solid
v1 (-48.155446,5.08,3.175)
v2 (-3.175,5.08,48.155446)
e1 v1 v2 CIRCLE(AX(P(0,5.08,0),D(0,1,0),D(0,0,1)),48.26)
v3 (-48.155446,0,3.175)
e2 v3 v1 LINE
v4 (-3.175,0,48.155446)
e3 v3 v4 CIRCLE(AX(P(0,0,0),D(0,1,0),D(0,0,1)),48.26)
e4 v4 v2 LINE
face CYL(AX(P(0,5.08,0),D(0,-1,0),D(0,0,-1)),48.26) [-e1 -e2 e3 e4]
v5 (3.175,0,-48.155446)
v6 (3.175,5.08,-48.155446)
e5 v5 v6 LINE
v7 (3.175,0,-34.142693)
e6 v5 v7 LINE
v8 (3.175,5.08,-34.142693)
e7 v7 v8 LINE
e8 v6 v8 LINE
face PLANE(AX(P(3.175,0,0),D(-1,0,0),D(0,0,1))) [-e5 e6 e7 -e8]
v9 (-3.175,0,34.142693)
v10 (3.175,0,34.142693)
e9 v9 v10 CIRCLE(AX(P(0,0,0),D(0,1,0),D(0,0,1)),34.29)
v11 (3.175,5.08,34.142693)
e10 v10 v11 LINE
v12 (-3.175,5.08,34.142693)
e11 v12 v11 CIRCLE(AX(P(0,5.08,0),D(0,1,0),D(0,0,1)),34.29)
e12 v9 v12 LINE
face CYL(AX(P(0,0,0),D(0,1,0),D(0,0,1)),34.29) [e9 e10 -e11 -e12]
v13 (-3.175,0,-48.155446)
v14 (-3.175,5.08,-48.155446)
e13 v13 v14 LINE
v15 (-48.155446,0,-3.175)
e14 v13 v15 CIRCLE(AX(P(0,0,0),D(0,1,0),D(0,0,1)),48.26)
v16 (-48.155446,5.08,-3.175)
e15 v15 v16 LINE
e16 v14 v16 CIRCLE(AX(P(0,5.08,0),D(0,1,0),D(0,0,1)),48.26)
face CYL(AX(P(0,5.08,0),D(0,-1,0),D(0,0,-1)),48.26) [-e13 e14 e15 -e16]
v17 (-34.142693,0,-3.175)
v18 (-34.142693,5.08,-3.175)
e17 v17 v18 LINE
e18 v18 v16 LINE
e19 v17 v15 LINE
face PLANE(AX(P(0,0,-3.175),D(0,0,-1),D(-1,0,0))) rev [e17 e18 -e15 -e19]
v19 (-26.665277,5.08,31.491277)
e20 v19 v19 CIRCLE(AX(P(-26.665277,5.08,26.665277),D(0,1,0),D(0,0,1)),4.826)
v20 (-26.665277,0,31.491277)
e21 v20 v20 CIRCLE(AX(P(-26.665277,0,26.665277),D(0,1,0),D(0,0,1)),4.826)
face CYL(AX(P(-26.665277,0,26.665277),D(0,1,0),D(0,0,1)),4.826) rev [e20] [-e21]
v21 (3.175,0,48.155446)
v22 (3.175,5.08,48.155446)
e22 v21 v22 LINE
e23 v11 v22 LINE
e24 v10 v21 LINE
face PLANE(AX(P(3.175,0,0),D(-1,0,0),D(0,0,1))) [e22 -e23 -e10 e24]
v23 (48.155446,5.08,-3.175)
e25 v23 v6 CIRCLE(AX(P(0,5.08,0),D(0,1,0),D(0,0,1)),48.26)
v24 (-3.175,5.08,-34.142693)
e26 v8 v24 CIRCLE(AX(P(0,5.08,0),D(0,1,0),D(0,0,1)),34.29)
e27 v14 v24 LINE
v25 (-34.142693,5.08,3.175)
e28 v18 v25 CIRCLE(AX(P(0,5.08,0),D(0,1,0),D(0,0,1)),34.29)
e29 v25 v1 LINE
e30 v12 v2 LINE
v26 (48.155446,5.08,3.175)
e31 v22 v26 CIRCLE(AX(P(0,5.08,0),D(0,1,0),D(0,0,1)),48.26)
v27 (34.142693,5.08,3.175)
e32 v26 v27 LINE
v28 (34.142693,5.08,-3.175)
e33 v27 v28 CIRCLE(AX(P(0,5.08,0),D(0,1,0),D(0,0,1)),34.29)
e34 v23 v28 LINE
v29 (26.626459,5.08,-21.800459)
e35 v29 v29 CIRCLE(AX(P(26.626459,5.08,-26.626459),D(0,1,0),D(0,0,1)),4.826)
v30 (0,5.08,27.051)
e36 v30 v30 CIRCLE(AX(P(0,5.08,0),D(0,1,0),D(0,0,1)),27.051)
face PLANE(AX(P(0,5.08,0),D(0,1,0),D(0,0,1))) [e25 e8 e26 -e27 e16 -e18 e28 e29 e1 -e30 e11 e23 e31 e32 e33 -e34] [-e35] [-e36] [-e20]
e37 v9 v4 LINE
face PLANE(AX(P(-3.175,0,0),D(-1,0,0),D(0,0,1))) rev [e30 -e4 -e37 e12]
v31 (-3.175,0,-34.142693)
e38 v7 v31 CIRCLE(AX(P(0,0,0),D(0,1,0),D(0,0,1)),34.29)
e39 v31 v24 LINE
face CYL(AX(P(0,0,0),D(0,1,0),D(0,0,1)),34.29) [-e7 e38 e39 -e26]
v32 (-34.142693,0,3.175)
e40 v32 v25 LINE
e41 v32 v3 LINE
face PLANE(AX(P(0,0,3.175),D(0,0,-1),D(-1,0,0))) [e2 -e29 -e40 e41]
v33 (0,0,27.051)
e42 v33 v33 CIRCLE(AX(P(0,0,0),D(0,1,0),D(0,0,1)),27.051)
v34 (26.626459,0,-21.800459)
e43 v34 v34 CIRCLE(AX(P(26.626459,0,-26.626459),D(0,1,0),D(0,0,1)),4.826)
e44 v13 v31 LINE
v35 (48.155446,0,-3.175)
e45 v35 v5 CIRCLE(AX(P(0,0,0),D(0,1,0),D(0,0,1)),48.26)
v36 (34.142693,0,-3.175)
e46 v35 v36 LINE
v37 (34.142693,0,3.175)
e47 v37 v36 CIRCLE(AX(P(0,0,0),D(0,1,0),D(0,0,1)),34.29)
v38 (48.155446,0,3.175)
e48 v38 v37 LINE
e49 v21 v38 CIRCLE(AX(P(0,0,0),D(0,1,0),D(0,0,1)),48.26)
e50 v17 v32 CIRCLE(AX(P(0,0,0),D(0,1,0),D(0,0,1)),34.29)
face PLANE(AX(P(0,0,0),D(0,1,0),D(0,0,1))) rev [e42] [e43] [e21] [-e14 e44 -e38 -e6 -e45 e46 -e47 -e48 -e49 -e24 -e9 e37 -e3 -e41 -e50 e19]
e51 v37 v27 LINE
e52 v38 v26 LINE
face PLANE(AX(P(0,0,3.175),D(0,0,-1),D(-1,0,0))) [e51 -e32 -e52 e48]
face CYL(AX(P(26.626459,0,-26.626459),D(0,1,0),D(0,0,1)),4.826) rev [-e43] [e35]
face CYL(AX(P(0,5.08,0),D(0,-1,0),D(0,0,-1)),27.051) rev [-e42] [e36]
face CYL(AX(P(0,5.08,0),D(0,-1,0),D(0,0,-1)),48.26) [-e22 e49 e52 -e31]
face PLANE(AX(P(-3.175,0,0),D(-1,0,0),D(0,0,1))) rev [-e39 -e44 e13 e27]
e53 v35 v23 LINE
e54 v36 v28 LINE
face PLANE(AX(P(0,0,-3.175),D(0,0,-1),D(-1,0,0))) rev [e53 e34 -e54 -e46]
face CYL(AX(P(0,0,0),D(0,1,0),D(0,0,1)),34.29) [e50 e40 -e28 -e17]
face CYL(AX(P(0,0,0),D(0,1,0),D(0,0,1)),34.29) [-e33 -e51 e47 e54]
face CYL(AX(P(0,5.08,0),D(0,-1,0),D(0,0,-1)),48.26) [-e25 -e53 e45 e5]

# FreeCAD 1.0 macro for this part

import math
import FreeCAD as App
import Part
import Sketcher
Q = App.Units.Quantity

doc = App.newDocument("Part")
body = doc.addObject("PartDesign::Body", "Body")

sketch1 = doc.addObject("Sketcher::SketchObject", "Sketch")
body.addObject(sketch1)
sketch1.AttachmentSupport = (doc.XZ_Plane, [""])
sketch1.MapMode = "FlatFace"
sketch1.addGeometry(Part.Circle(App.Vector(0, 0, 0), App.Vector(0, 0, 1), 48), False)
sketch1.addGeometry(Part.Circle(App.Vector(0, 0, 0), App.Vector(0, 0, 1), 27), False)
sketch1.addConstraint(Sketcher.Constraint("Coincident", 0, 3, -1, 1))
sketch1.addConstraint(Sketcher.Constraint("Coincident", 1, 3, -1, 1))
sketch1.addConstraint(Sketcher.Constraint("Diameter", 0, Q("3.8 in")))
sketch1.addConstraint(Sketcher.Constraint("Diameter", 1, Q("2.13 in")))
pad1 = doc.addObject("PartDesign::Pad", "Pad")
body.addObject(pad1)
pad1.Profile = sketch1
pad1.Length = Q("0.2 in")
pad1.Reversed = True

sketch2 = doc.addObject("Sketcher::SketchObject", "Sketch001")
body.addObject(sketch2)
sketch2.AttachmentSupport = (doc.XZ_Plane, [""])
sketch2.MapMode = "FlatFace"
sketch2.AttachmentOffset = App.Placement(App.Vector(0, 0, -0.2 * 25.4), App.Rotation())
sketch2.addGeometry(Part.ArcOfCircle(Part.Circle(App.Vector(0, 0, 0), App.Vector(0, 0, 1), 34.3), math.radians(174.69), math.radians(185.31)), False)
sketch2.addGeometry(Part.LineSegment(App.Vector(-34.1, -3.2, 0), App.Vector(-48.2, -3.2, 0)), False)
sketch2.addGeometry(Part.ArcOfCircle(Part.Circle(App.Vector(0, 0, 0), App.Vector(0, 0, 1), 48.3), math.radians(176.23), math.radians(183.77)), False)
sketch2.addGeometry(Part.LineSegment(App.Vector(-48.2, 3.2, 0), App.Vector(-34.1, 3.2, 0)), False)
sketch2.addGeometry(Part.ArcOfCircle(Part.Circle(App.Vector(0, 0, 0), App.Vector(0, 0, 1), 48.3), math.radians(-3.77), math.radians(0)), False)
sketch2.addGeometry(Part.LineSegment(App.Vector(48.2, -3.2, 0), App.Vector(34.1, -3.2, 0)), False)
sketch2.addGeometry(Part.ArcOfCircle(Part.Circle(App.Vector(0, 0, 0), App.Vector(0, 0, 1), 34.3), math.radians(-5.31), math.radians(5.31)), False)
sketch2.addGeometry(Part.LineSegment(App.Vector(34.1, 3.2, 0), App.Vector(48.2, 3.2, 0)), False)
sketch2.addGeometry(Part.ArcOfCircle(Part.Circle(App.Vector(0, 0, 0), App.Vector(0, 0, 1), 48.3), math.radians(0), math.radians(3.77)), False)
sketch2.addGeometry(Part.LineSegment(App.Vector(-3.2, 34.1, 0), App.Vector(-3.2, 48.2, 0)), False)
sketch2.addGeometry(Part.ArcOfCircle(Part.Circle(App.Vector(0, 0, 0), App.Vector(0, 0, 1), 48.3), math.radians(86.23), math.radians(93.77)), False)
sketch2.addGeometry(Part.LineSegment(App.Vector(3.2, 48.2, 0), App.Vector(3.2, 34.1, 0)), False)
sketch2.addGeometry(Part.ArcOfCircle(Part.Circle(App.Vector(0, 0, 0), App.Vector(0, 0, 1), 34.3), math.radians(84.69), math.radians(95.31)), False)
sketch2.addGeometry(Part.ArcOfCircle(Part.Circle(App.Vector(0, 0, 0), App.Vector(0, 0, 1), 48.3), math.radians(-93.77), math.radians(-86.23)), False)
sketch2.addGeometry(Part.LineSegment(App.Vector(-3.2, -48.2, 0), App.Vector(-3.2, -34.1, 0)), False)
sketch2.addGeometry(Part.ArcOfCircle(Part.Circle(App.Vector(0, 0, 0), App.Vector(0, 0, 1), 34.3), math.radians(-95.31), math.radians(-84.69)), False)
sketch2.addGeometry(Part.LineSegment(App.Vector(3.2, -34.1, 0), App.Vector(3.2, -48.2, 0)), False)
sketch2.addConstraint(Sketcher.Constraint("Coincident", 0, 2, 1, 1))
sketch2.addConstraint(Sketcher.Constraint("Coincident", 1, 2, 2, 2))
sketch2.addConstraint(Sketcher.Constraint("Coincident", 2, 1, 3, 1))
sketch2.addConstraint(Sketcher.Constraint("Coincident", 3, 2, 0, 1))
sketch2.addConstraint(Sketcher.Constraint("Coincident", 4, 1, 5, 1))
sketch2.addConstraint(Sketcher.Constraint("Coincident", 5, 2, 6, 1))
sketch2.addConstraint(Sketcher.Constraint("Coincident", 6, 2, 7, 1))
sketch2.addConstraint(Sketcher.Constraint("Coincident", 7, 2, 8, 2))
sketch2.addConstraint(Sketcher.Constraint("Tangent", 8, 1, 4, 2))
sketch2.addConstraint(Sketcher.Constraint("Coincident", 9, 2, 10, 2))
sketch2.addConstraint(Sketcher.Constraint("Coincident", 10, 1, 11, 1))
sketch2.addConstraint(Sketcher.Constraint("Coincident", 11, 2, 12, 1))
sketch2.addConstraint(Sketcher.Constraint("Coincident", 12, 2, 9, 1))
sketch2.addConstraint(Sketcher.Constraint("Coincident", 13, 1, 14, 1))
sketch2.addConstraint(Sketcher.Constraint("Coincident", 14, 2, 15, 1))
sketch2.addConstraint(Sketcher.Constraint("Coincident", 15, 2, 16, 1))
sketch2.addConstraint(Sketcher.Constraint("Coincident", 16, 2, 13, 2))
sketch2.addConstraint(Sketcher.Constraint("Horizontal", 1))
sketch2.addConstraint(Sketcher.Constraint("Horizontal", 3))
sketch2.addConstraint(Sketcher.Constraint("Horizontal", 5))
sketch2.addConstraint(Sketcher.Constraint("Horizontal", 7))
sketch2.addConstraint(Sketcher.Constraint("Vertical", 9))
sketch2.addConstraint(Sketcher.Constraint("Vertical", 11))
sketch2.addConstraint(Sketcher.Constraint("Vertical", 14))
sketch2.addConstraint(Sketcher.Constraint("Vertical", 16))
sketch2.addConstraint(Sketcher.Constraint("Coincident", 0, 3, -1, 1))
sketch2.addConstraint(Sketcher.Constraint("Coincident", 2, 3, -1, 1))
sketch2.addConstraint(Sketcher.Constraint("Coincident", 4, 3, -1, 1))
sketch2.addConstraint(Sketcher.Constraint("Coincident", 6, 3, -1, 1))
sketch2.addConstraint(Sketcher.Constraint("Coincident", 10, 3, -1, 1))
sketch2.addConstraint(Sketcher.Constraint("Coincident", 12, 3, -1, 1))
sketch2.addConstraint(Sketcher.Constraint("Coincident", 13, 3, -1, 1))
sketch2.addConstraint(Sketcher.Constraint("Coincident", 15, 3, -1, 1))
sketch2.addConstraint(Sketcher.Constraint("Equal", 2, 4))
sketch2.addConstraint(Sketcher.Constraint("Equal", 0, 6))
sketch2.addConstraint(Sketcher.Constraint("Equal", 4, 8))
sketch2.addConstraint(Sketcher.Constraint("Equal", 8, 10))
sketch2.addConstraint(Sketcher.Constraint("Equal", 6, 12))
sketch2.addConstraint(Sketcher.Constraint("Equal", 10, 13))
sketch2.addConstraint(Sketcher.Constraint("Equal", 12, 15))
sketch2.addConstraint(Sketcher.Constraint("PointOnObject", 8, 1, -1))
sketch2.addConstraint(Sketcher.Constraint("Horizontal", 1, 2, 4, 1))
sketch2.addConstraint(Sketcher.Constraint("Horizontal", 3, 2, 6, 2))
sketch2.addConstraint(Sketcher.Constraint("Horizontal", 9, 2, 10, 1))
sketch2.addConstraint(Sketcher.Constraint("Horizontal", 14, 2, 15, 2))
sketch2.addConstraint(Sketcher.Constraint("Vertical", 1, 2, 2, 1))
sketch2.addConstraint(Sketcher.Constraint("Vertical", 12, 2, 13, 1))
sketch2.addConstraint(Sketcher.Constraint("Equal", 7, 9))
sketch2.addConstraint(Sketcher.Constraint("Radius", 2, Q("1.9 in")))
sketch2.addConstraint(Sketcher.Constraint("Radius", 0, Q("1.35 in")))
sketch2.addConstraint(Sketcher.Constraint("DistanceY", 1, 2, 2, 1, Q("0.25 in")))
pocket1 = doc.addObject("PartDesign::Pocket", "Pocket")
body.addObject(pocket1)
pocket1.Profile = sketch2
pocket1.Type = "ThroughAll"
pocket1.Reversed = True

sketch3 = doc.addObject("Sketcher::SketchObject", "Sketch002")
body.addObject(sketch3)
sketch3.AttachmentSupport = (doc.XZ_Plane, [""])
sketch3.MapMode = "FlatFace"
sketch3.AttachmentOffset = App.Placement(App.Vector(0, 0, -0.2 * 25.4), App.Rotation())
sketch3.addGeometry(Part.Circle(App.Vector(-26.7, 26.7, 0), App.Vector(0, 0, 1), 4.8), False)
sketch3.addGeometry(Part.Circle(App.Vector(26.6, -26.6, 0), App.Vector(0, 0, 1), 4.8), False)
sketch3.addConstraint(Sketcher.Constraint("Equal", 0, 1))
sketch3.addConstraint(Sketcher.Constraint("Diameter", 0, Q("0.38 in")))
sketch3.addConstraint(Sketcher.Constraint("DistanceX", 0, 3, 1, 3, Q("2.0980999 in")))
sketch3.addConstraint(Sketcher.Constraint("DistanceY", 1, 3, 0, 3, Q("2.0980999 in")))
sketch3.addConstraint(Sketcher.Constraint("DistanceX", -1, 1, 1, 3, 26.626459))
sketch3.addConstraint(Sketcher.Constraint("DistanceY", 1, 3, -1, 1, 26.626459))
pocket2 = doc.addObject("PartDesign::Pocket", "Pocket001")
body.addObject(pocket2)
pocket2.Profile = sketch3
pocket2.Type = "ThroughAll"
pocket2.Reversed = True

doc.recompute()
